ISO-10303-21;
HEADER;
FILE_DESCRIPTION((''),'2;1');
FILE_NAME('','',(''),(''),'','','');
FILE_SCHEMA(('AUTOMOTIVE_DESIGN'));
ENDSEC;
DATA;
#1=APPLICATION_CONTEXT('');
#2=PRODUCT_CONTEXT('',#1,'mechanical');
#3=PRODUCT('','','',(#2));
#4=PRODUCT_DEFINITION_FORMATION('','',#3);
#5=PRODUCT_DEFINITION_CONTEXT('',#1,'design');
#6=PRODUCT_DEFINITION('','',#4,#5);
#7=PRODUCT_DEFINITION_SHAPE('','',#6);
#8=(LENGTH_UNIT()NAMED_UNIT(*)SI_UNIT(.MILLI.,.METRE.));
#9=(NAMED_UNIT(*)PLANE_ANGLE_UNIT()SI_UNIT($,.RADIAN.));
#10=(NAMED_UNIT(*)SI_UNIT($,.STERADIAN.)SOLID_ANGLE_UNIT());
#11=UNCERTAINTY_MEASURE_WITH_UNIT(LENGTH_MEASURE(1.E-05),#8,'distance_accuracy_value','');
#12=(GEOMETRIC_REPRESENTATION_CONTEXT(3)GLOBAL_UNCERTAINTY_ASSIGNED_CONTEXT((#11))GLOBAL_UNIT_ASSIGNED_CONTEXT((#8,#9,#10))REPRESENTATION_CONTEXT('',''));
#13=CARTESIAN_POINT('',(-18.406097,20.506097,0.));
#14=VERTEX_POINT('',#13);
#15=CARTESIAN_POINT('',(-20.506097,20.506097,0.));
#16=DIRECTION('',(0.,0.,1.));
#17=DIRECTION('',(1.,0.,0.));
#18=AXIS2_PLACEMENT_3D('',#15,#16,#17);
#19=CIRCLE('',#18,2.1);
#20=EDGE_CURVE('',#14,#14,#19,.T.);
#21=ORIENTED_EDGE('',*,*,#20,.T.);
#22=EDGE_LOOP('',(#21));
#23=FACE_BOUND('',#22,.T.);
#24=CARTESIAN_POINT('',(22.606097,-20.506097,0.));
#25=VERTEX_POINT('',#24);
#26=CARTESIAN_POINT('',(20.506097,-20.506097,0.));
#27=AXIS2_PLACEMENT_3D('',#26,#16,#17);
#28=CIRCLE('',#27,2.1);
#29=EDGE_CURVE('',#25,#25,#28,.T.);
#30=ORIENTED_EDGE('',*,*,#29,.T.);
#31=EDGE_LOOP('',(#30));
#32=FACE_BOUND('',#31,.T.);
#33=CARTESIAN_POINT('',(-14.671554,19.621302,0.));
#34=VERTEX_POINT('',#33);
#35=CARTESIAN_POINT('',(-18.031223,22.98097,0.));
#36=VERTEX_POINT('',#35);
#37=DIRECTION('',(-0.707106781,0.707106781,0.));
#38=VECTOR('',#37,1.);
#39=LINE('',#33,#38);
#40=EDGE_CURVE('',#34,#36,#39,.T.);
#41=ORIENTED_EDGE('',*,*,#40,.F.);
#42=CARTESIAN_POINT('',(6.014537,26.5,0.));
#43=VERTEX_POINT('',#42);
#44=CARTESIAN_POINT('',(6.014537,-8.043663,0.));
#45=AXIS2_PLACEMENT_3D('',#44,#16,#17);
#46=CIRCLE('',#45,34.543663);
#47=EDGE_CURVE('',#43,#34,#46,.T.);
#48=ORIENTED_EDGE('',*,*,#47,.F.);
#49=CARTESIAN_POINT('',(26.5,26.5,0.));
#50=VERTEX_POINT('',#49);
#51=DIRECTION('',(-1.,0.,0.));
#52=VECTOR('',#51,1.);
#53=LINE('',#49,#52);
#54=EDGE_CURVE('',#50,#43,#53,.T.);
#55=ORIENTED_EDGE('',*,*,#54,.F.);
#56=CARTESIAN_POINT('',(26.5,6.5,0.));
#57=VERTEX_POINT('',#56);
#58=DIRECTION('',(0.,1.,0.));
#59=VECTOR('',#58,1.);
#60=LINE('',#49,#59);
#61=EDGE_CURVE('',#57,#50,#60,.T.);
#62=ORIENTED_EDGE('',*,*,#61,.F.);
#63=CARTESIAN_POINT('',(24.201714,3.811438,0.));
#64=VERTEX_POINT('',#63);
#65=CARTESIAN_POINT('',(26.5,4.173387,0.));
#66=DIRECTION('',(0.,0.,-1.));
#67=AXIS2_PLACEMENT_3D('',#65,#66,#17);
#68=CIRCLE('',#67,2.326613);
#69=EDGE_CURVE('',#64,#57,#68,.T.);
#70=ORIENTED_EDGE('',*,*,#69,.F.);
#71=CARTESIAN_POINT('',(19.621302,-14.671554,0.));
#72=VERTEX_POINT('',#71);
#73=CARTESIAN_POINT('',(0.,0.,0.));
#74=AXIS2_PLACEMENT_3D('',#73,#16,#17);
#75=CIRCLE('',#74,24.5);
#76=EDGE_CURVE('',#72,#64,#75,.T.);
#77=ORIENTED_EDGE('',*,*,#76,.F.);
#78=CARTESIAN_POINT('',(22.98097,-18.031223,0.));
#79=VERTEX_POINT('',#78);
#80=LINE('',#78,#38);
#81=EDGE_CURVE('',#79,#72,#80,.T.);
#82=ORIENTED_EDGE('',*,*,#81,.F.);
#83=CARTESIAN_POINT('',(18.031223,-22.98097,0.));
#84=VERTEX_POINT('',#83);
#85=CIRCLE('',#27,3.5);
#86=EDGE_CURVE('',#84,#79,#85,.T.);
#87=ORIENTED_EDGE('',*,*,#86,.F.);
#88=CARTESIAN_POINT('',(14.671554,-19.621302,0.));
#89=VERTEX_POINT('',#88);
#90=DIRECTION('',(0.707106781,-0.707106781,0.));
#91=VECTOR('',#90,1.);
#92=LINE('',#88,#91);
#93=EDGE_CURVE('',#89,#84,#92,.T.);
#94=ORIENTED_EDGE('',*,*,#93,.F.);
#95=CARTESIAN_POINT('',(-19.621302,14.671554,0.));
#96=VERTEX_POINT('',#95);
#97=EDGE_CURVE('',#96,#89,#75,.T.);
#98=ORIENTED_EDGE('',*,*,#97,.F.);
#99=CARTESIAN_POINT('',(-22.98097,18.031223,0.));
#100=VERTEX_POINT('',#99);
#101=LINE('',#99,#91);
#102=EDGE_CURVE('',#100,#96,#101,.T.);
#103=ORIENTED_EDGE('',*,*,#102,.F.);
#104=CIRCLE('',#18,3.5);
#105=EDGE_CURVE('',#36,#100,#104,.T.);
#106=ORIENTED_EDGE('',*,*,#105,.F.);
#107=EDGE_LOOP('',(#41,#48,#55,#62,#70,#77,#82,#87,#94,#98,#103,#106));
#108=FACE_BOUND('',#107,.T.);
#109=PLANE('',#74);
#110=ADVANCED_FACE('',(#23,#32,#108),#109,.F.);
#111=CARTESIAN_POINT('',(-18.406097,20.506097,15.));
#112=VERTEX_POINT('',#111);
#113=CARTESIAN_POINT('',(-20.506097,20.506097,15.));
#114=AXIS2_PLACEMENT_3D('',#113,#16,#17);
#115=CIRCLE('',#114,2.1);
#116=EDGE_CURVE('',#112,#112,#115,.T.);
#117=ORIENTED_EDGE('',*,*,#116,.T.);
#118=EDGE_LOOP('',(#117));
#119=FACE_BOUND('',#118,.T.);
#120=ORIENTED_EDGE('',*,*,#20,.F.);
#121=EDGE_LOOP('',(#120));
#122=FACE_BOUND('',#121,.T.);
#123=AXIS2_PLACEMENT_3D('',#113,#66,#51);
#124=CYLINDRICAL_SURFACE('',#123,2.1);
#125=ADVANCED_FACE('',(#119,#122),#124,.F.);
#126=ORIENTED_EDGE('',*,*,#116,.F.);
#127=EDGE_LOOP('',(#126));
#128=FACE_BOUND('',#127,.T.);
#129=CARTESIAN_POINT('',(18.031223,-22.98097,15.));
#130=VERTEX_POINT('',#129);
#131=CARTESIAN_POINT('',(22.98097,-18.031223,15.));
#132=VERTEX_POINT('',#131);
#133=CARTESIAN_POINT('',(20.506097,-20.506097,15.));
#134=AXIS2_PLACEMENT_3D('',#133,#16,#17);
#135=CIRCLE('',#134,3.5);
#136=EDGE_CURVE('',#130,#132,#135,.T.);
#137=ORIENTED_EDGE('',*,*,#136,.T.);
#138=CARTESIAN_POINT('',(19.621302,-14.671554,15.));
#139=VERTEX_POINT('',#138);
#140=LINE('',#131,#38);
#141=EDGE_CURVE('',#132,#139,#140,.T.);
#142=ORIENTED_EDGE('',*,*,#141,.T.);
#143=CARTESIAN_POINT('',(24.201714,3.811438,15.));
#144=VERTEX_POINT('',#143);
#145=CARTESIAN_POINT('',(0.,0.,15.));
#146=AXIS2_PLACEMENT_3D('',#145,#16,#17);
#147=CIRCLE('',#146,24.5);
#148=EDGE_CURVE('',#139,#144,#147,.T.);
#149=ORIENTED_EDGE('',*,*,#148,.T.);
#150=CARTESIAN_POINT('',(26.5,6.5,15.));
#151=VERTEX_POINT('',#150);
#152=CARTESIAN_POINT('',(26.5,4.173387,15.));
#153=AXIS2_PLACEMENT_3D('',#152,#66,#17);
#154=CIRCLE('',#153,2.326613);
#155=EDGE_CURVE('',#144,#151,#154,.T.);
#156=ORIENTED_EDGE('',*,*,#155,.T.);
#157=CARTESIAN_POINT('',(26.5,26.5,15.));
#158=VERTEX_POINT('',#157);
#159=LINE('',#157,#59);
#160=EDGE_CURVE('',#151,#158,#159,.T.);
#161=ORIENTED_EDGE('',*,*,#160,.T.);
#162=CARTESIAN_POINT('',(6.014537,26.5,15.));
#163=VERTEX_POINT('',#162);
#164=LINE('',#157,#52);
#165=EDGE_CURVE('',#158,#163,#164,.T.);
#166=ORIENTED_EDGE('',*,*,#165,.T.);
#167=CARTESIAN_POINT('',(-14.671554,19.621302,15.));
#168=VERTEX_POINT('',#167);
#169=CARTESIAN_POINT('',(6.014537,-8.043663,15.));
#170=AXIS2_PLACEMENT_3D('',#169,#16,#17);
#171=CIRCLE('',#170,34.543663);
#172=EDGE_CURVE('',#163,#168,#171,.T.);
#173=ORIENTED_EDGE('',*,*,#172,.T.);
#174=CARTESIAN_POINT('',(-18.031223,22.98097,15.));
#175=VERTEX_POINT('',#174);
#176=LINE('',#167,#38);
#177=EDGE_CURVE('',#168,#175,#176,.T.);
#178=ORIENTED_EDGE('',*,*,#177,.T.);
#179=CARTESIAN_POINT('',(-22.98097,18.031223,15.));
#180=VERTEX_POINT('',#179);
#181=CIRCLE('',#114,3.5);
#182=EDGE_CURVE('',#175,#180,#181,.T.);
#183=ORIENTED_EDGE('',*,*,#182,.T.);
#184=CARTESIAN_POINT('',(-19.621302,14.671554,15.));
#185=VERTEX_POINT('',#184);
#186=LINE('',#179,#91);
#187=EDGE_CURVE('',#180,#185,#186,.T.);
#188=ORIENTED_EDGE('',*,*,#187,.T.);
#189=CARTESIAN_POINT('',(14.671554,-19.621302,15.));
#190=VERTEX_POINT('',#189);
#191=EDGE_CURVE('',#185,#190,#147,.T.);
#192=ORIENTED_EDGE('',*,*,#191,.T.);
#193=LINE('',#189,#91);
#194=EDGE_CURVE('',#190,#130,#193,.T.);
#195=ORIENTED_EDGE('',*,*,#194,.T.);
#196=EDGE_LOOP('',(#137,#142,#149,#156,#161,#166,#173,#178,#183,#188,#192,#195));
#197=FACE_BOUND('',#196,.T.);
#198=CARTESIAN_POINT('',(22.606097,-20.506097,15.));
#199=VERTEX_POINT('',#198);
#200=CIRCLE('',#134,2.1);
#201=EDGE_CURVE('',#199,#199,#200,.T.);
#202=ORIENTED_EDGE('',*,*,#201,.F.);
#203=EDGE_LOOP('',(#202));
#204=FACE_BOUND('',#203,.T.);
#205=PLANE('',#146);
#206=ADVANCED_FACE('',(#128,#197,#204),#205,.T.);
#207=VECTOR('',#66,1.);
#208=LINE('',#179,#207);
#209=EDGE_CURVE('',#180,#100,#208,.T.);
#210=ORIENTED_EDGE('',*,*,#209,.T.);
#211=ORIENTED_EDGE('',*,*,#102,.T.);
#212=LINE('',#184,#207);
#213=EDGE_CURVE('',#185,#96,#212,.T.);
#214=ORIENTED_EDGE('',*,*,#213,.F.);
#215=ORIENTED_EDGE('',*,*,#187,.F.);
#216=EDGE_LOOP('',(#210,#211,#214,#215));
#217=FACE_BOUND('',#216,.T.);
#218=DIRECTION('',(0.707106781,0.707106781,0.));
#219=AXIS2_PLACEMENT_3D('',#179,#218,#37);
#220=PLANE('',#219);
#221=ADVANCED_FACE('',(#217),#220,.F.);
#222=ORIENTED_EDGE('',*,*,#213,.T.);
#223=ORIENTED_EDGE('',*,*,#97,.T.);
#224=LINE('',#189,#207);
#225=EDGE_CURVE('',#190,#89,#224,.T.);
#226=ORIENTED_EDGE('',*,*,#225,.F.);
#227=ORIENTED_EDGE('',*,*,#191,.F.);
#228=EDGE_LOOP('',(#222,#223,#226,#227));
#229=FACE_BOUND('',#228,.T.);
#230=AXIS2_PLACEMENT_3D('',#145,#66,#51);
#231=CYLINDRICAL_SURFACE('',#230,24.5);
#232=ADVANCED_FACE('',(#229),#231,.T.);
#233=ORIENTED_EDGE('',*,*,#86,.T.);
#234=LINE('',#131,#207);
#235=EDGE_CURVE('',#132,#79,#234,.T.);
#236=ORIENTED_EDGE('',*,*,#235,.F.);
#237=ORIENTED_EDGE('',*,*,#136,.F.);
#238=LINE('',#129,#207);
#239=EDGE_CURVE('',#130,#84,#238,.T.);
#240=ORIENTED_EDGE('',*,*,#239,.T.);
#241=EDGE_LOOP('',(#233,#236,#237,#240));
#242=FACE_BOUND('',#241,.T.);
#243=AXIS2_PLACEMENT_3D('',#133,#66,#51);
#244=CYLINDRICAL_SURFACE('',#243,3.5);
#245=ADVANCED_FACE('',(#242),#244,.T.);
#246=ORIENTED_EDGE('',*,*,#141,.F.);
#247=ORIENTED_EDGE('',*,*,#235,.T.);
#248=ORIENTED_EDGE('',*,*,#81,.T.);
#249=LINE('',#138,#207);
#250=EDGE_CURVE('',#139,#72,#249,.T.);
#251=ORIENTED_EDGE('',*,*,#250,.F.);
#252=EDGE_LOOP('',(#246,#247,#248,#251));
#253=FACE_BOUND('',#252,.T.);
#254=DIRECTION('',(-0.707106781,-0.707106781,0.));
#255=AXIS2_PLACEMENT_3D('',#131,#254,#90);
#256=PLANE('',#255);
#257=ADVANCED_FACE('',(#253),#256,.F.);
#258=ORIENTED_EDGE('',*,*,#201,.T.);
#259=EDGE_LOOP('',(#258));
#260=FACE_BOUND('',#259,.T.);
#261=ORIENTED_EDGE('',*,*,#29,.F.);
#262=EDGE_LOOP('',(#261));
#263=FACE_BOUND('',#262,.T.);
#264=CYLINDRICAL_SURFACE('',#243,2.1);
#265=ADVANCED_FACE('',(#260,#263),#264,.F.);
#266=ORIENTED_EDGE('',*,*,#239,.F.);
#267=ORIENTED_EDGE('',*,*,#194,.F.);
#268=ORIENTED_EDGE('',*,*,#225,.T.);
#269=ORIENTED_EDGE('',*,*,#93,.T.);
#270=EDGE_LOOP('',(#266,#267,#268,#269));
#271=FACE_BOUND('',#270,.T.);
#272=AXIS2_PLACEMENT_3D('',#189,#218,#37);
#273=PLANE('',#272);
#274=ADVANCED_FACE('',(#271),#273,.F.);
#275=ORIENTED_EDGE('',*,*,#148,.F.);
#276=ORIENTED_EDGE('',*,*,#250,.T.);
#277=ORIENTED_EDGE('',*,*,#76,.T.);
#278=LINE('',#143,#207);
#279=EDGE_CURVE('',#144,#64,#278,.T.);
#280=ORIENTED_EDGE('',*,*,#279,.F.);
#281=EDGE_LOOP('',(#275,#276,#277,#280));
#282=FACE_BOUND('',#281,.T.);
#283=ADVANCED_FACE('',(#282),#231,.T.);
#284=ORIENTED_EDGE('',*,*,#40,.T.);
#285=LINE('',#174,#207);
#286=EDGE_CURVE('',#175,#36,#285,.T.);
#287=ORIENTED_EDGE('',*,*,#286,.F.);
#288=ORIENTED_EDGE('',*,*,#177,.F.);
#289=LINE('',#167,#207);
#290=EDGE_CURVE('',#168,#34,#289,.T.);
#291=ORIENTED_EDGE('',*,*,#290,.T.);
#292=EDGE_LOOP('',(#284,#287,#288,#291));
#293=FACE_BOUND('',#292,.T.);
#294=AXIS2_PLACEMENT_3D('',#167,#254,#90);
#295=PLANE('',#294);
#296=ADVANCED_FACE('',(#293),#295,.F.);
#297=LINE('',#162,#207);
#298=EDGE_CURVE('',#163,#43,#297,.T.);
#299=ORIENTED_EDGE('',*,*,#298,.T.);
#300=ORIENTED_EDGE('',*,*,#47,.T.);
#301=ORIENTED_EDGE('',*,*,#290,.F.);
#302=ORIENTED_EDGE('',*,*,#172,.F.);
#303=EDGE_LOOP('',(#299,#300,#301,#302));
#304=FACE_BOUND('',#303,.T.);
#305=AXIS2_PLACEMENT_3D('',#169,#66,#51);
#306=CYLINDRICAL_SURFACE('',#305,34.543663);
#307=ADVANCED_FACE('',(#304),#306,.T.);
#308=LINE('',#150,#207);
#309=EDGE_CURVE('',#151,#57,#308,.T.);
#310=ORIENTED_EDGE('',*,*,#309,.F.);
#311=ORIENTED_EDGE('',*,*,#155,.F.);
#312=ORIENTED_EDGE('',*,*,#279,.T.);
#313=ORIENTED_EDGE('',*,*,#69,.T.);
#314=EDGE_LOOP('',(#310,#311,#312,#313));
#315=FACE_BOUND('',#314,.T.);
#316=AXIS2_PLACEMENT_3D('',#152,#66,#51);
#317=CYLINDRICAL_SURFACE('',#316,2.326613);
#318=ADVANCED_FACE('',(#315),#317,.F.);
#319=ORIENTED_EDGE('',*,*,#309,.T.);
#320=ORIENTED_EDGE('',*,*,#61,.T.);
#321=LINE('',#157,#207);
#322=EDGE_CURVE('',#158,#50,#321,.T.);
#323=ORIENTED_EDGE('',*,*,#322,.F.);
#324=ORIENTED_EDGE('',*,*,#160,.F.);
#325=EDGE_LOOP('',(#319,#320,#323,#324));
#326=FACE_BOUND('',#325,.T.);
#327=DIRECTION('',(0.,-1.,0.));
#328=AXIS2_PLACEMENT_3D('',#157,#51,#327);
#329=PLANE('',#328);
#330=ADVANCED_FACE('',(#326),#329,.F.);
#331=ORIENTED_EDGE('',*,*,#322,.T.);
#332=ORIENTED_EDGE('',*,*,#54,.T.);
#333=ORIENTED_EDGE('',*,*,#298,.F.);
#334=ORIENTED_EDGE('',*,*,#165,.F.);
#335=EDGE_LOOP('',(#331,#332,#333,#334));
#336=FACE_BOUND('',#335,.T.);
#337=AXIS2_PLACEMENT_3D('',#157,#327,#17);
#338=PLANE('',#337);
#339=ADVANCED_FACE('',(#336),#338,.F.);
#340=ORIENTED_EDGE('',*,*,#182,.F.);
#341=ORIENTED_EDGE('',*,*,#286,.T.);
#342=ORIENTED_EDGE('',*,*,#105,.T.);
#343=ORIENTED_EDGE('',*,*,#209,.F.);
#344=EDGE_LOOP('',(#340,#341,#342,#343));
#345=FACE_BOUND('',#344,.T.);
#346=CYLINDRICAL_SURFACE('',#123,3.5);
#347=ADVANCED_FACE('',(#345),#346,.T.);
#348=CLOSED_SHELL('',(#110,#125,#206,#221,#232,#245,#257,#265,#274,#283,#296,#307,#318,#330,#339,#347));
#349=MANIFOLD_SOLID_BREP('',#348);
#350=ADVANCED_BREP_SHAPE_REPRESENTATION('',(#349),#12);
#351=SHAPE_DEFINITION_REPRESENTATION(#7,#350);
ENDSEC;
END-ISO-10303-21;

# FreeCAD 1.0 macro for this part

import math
import FreeCAD as App
import Part
import Sketcher
Q = App.Units.Quantity

doc = App.newDocument("Part")
params = doc.addObject("Spreadsheet::Sheet", "Params")
for row, (alias, value) in enumerate([
    ("sketch1_diameter", "4.2 mm"),
    ("sketch1_radius", "24.5 mm"),
    ("sketch1_radius2", "3.5 mm"),
    ("sketch1_height", "20 mm"),
    ("pad1_length", "15 mm"),
], start=1):
    params.set(f"A{row}", alias)
    params.set(f"B{row}", "=" + value)
    params.setAlias(f"B{row}", alias)

body = doc.addObject("PartDesign::Body", "Body")

sketch1 = body.newObject("Sketcher::SketchObject", "Sketch")
sketch1.AttachmentSupport = (doc.getObject("XY_Plane"), [""])
sketch1.MapMode = "FlatFace"
sketch1.addGeometry(Part.LineSegment(App.Vector(-23, 18, 0), App.Vector(-19.6, 14.7, 0)), False)
sketch1.addGeometry(Part.ArcOfCircle(Part.Circle(App.Vector(0, 0, 0), App.Vector(0, 0, 1), 24.5), math.radians(143), math.radians(307)), False)
sketch1.addGeometry(Part.LineSegment(App.Vector(14.7, -19.6, 0), App.Vector(18, -23, 0)), False)
sketch1.addGeometry(Part.ArcOfCircle(Part.Circle(App.Vector(20.5, -20.5, 0), App.Vector(0, 0, 1), 3.5), math.radians(-135), math.radians(45)), False)
sketch1.addGeometry(Part.LineSegment(App.Vector(23, -18, 0), App.Vector(19.6, -14.7, 0)), False)
sketch1.addGeometry(Part.ArcOfCircle(Part.Circle(App.Vector(0, 0, 0), App.Vector(0, 0, 1), 24.5), math.radians(-37), math.radians(9)), False)
sketch1.addGeometry(Part.ArcOfCircle(Part.Circle(App.Vector(26.5, 4.2, 0), App.Vector(0, 0, 1), 2.3), math.radians(90), math.radians(189)), False)
sketch1.addGeometry(Part.LineSegment(App.Vector(26.5, 6.5, 0), App.Vector(26.5, 26.5, 0)), False)
sketch1.addGeometry(Part.LineSegment(App.Vector(26.5, 26.5, 0), App.Vector(6, 26.5, 0)), False)
sketch1.addGeometry(Part.ArcOfCircle(Part.Circle(App.Vector(6, -8, 0), App.Vector(0, 0, 1), 34.5), math.radians(90), math.radians(127)), False)
sketch1.addGeometry(Part.LineSegment(App.Vector(-14.7, 19.6, 0), App.Vector(-18, 23, 0)), False)
sketch1.addGeometry(Part.ArcOfCircle(Part.Circle(App.Vector(-20.5, 20.5, 0), App.Vector(0, 0, 1), 3.5), math.radians(45), math.radians(225)), False)
sketch1.addGeometry(Part.Circle(App.Vector(20.5, -20.5, 0), App.Vector(0, 0, 1), 2.1), False)
sketch1.addGeometry(Part.Circle(App.Vector(-20.5, 20.5, 0), App.Vector(0, 0, 1), 2.1), False)
sketch1.addConstraint(Sketcher.Constraint("Coincident", 0, 2, 1, 1))
sketch1.addConstraint(Sketcher.Constraint("Coincident", 1, 2, 2, 1))
sketch1.addConstraint(Sketcher.Constraint("Tangent", 2, 2, 3, 1))
sketch1.addConstraint(Sketcher.Constraint("Tangent", 3, 2, 4, 1))
sketch1.addConstraint(Sketcher.Constraint("Coincident", 4, 2, 5, 1))
sketch1.addConstraint(Sketcher.Constraint("Tangent", 5, 2, 6, 2))
sketch1.addConstraint(Sketcher.Constraint("Coincident", 6, 1, 7, 1))
sketch1.addConstraint(Sketcher.Constraint("Coincident", 7, 2, 8, 1))
sketch1.addConstraint(Sketcher.Constraint("Tangent", 8, 2, 9, 1))
sketch1.addConstraint(Sketcher.Constraint("Coincident", 9, 2, 10, 1))
sketch1.addConstraint(Sketcher.Constraint("Tangent", 10, 2, 11, 1))
sketch1.addConstraint(Sketcher.Constraint("Tangent", 11, 2, 0, 1))
sketch1.addConstraint(Sketcher.Constraint("Vertical", 7))
sketch1.addConstraint(Sketcher.Constraint("Horizontal", 8))
sketch1.addConstraint(Sketcher.Constraint("Coincident", 1, 3, -1, 1))
sketch1.addConstraint(Sketcher.Constraint("Coincident", 5, 3, -1, 1))
sketch1.addConstraint(Sketcher.Constraint("Coincident", 12, 3, 3, 3))
sketch1.addConstraint(Sketcher.Constraint("Coincident", 13, 3, 11, 3))
sketch1.addConstraint(Sketcher.Constraint("Equal", 1, 5))
sketch1.addConstraint(Sketcher.Constraint("Equal", 3, 11))
sketch1.addConstraint(Sketcher.Constraint("Equal", 12, 13))
sketch1.addConstraint(Sketcher.Constraint("Symmetric", 3, 3, 11, 3, -1, 1))
sketch1.addConstraint(Sketcher.Constraint("Symmetric", 1, 2, 9, 2, -1, 1))
sketch1.addConstraint(Sketcher.Constraint("Parallel", 0, 2))
sketch1.addConstraint(Sketcher.Constraint("Parallel", 2, 4))
sketch1.addConstraint(Sketcher.Constraint("Equal", 0, 2))
sketch1.addConstraint(Sketcher.Constraint("Diameter", 12, 4.2))
sketch1.addConstraint(Sketcher.Constraint("Radius", 1, 24.5))
sketch1.addConstraint(Sketcher.Constraint("Radius", 3, 3.5))
sketch1.addConstraint(Sketcher.Constraint("DistanceY", 7, 1, 7, 2, 20.0))
sketch1.addConstraint(Sketcher.Constraint("Angle", 0, Q("-45 deg")))
sketch1.addConstraint(Sketcher.Constraint("DistanceX", -1, 1, 6, 3, 26.5))
sketch1.addConstraint(Sketcher.Constraint("DistanceX", -1, 1, 6, 1, 26.5))
sketch1.addConstraint(Sketcher.Constraint("DistanceY", -1, 1, 6, 1, 6.5))
sketch1.addConstraint(Sketcher.Constraint("Radius", 9, 34.543663))
sketch1.addConstraint(Sketcher.Constraint("Distance", 0, 4.751289))
sketch1.setExpression("Constraints[26]", "Params.sketch1_diameter")
sketch1.setExpression("Constraints[27]", "Params.sketch1_radius")
sketch1.setExpression("Constraints[28]", "Params.sketch1_radius2")
sketch1.setExpression("Constraints[29]", "Params.sketch1_height")
pad1 = body.newObject("PartDesign::Pad", "Pad")
pad1.Profile = sketch1
pad1.setExpression("Length", "Params.pad1_length")

doc.recompute()
